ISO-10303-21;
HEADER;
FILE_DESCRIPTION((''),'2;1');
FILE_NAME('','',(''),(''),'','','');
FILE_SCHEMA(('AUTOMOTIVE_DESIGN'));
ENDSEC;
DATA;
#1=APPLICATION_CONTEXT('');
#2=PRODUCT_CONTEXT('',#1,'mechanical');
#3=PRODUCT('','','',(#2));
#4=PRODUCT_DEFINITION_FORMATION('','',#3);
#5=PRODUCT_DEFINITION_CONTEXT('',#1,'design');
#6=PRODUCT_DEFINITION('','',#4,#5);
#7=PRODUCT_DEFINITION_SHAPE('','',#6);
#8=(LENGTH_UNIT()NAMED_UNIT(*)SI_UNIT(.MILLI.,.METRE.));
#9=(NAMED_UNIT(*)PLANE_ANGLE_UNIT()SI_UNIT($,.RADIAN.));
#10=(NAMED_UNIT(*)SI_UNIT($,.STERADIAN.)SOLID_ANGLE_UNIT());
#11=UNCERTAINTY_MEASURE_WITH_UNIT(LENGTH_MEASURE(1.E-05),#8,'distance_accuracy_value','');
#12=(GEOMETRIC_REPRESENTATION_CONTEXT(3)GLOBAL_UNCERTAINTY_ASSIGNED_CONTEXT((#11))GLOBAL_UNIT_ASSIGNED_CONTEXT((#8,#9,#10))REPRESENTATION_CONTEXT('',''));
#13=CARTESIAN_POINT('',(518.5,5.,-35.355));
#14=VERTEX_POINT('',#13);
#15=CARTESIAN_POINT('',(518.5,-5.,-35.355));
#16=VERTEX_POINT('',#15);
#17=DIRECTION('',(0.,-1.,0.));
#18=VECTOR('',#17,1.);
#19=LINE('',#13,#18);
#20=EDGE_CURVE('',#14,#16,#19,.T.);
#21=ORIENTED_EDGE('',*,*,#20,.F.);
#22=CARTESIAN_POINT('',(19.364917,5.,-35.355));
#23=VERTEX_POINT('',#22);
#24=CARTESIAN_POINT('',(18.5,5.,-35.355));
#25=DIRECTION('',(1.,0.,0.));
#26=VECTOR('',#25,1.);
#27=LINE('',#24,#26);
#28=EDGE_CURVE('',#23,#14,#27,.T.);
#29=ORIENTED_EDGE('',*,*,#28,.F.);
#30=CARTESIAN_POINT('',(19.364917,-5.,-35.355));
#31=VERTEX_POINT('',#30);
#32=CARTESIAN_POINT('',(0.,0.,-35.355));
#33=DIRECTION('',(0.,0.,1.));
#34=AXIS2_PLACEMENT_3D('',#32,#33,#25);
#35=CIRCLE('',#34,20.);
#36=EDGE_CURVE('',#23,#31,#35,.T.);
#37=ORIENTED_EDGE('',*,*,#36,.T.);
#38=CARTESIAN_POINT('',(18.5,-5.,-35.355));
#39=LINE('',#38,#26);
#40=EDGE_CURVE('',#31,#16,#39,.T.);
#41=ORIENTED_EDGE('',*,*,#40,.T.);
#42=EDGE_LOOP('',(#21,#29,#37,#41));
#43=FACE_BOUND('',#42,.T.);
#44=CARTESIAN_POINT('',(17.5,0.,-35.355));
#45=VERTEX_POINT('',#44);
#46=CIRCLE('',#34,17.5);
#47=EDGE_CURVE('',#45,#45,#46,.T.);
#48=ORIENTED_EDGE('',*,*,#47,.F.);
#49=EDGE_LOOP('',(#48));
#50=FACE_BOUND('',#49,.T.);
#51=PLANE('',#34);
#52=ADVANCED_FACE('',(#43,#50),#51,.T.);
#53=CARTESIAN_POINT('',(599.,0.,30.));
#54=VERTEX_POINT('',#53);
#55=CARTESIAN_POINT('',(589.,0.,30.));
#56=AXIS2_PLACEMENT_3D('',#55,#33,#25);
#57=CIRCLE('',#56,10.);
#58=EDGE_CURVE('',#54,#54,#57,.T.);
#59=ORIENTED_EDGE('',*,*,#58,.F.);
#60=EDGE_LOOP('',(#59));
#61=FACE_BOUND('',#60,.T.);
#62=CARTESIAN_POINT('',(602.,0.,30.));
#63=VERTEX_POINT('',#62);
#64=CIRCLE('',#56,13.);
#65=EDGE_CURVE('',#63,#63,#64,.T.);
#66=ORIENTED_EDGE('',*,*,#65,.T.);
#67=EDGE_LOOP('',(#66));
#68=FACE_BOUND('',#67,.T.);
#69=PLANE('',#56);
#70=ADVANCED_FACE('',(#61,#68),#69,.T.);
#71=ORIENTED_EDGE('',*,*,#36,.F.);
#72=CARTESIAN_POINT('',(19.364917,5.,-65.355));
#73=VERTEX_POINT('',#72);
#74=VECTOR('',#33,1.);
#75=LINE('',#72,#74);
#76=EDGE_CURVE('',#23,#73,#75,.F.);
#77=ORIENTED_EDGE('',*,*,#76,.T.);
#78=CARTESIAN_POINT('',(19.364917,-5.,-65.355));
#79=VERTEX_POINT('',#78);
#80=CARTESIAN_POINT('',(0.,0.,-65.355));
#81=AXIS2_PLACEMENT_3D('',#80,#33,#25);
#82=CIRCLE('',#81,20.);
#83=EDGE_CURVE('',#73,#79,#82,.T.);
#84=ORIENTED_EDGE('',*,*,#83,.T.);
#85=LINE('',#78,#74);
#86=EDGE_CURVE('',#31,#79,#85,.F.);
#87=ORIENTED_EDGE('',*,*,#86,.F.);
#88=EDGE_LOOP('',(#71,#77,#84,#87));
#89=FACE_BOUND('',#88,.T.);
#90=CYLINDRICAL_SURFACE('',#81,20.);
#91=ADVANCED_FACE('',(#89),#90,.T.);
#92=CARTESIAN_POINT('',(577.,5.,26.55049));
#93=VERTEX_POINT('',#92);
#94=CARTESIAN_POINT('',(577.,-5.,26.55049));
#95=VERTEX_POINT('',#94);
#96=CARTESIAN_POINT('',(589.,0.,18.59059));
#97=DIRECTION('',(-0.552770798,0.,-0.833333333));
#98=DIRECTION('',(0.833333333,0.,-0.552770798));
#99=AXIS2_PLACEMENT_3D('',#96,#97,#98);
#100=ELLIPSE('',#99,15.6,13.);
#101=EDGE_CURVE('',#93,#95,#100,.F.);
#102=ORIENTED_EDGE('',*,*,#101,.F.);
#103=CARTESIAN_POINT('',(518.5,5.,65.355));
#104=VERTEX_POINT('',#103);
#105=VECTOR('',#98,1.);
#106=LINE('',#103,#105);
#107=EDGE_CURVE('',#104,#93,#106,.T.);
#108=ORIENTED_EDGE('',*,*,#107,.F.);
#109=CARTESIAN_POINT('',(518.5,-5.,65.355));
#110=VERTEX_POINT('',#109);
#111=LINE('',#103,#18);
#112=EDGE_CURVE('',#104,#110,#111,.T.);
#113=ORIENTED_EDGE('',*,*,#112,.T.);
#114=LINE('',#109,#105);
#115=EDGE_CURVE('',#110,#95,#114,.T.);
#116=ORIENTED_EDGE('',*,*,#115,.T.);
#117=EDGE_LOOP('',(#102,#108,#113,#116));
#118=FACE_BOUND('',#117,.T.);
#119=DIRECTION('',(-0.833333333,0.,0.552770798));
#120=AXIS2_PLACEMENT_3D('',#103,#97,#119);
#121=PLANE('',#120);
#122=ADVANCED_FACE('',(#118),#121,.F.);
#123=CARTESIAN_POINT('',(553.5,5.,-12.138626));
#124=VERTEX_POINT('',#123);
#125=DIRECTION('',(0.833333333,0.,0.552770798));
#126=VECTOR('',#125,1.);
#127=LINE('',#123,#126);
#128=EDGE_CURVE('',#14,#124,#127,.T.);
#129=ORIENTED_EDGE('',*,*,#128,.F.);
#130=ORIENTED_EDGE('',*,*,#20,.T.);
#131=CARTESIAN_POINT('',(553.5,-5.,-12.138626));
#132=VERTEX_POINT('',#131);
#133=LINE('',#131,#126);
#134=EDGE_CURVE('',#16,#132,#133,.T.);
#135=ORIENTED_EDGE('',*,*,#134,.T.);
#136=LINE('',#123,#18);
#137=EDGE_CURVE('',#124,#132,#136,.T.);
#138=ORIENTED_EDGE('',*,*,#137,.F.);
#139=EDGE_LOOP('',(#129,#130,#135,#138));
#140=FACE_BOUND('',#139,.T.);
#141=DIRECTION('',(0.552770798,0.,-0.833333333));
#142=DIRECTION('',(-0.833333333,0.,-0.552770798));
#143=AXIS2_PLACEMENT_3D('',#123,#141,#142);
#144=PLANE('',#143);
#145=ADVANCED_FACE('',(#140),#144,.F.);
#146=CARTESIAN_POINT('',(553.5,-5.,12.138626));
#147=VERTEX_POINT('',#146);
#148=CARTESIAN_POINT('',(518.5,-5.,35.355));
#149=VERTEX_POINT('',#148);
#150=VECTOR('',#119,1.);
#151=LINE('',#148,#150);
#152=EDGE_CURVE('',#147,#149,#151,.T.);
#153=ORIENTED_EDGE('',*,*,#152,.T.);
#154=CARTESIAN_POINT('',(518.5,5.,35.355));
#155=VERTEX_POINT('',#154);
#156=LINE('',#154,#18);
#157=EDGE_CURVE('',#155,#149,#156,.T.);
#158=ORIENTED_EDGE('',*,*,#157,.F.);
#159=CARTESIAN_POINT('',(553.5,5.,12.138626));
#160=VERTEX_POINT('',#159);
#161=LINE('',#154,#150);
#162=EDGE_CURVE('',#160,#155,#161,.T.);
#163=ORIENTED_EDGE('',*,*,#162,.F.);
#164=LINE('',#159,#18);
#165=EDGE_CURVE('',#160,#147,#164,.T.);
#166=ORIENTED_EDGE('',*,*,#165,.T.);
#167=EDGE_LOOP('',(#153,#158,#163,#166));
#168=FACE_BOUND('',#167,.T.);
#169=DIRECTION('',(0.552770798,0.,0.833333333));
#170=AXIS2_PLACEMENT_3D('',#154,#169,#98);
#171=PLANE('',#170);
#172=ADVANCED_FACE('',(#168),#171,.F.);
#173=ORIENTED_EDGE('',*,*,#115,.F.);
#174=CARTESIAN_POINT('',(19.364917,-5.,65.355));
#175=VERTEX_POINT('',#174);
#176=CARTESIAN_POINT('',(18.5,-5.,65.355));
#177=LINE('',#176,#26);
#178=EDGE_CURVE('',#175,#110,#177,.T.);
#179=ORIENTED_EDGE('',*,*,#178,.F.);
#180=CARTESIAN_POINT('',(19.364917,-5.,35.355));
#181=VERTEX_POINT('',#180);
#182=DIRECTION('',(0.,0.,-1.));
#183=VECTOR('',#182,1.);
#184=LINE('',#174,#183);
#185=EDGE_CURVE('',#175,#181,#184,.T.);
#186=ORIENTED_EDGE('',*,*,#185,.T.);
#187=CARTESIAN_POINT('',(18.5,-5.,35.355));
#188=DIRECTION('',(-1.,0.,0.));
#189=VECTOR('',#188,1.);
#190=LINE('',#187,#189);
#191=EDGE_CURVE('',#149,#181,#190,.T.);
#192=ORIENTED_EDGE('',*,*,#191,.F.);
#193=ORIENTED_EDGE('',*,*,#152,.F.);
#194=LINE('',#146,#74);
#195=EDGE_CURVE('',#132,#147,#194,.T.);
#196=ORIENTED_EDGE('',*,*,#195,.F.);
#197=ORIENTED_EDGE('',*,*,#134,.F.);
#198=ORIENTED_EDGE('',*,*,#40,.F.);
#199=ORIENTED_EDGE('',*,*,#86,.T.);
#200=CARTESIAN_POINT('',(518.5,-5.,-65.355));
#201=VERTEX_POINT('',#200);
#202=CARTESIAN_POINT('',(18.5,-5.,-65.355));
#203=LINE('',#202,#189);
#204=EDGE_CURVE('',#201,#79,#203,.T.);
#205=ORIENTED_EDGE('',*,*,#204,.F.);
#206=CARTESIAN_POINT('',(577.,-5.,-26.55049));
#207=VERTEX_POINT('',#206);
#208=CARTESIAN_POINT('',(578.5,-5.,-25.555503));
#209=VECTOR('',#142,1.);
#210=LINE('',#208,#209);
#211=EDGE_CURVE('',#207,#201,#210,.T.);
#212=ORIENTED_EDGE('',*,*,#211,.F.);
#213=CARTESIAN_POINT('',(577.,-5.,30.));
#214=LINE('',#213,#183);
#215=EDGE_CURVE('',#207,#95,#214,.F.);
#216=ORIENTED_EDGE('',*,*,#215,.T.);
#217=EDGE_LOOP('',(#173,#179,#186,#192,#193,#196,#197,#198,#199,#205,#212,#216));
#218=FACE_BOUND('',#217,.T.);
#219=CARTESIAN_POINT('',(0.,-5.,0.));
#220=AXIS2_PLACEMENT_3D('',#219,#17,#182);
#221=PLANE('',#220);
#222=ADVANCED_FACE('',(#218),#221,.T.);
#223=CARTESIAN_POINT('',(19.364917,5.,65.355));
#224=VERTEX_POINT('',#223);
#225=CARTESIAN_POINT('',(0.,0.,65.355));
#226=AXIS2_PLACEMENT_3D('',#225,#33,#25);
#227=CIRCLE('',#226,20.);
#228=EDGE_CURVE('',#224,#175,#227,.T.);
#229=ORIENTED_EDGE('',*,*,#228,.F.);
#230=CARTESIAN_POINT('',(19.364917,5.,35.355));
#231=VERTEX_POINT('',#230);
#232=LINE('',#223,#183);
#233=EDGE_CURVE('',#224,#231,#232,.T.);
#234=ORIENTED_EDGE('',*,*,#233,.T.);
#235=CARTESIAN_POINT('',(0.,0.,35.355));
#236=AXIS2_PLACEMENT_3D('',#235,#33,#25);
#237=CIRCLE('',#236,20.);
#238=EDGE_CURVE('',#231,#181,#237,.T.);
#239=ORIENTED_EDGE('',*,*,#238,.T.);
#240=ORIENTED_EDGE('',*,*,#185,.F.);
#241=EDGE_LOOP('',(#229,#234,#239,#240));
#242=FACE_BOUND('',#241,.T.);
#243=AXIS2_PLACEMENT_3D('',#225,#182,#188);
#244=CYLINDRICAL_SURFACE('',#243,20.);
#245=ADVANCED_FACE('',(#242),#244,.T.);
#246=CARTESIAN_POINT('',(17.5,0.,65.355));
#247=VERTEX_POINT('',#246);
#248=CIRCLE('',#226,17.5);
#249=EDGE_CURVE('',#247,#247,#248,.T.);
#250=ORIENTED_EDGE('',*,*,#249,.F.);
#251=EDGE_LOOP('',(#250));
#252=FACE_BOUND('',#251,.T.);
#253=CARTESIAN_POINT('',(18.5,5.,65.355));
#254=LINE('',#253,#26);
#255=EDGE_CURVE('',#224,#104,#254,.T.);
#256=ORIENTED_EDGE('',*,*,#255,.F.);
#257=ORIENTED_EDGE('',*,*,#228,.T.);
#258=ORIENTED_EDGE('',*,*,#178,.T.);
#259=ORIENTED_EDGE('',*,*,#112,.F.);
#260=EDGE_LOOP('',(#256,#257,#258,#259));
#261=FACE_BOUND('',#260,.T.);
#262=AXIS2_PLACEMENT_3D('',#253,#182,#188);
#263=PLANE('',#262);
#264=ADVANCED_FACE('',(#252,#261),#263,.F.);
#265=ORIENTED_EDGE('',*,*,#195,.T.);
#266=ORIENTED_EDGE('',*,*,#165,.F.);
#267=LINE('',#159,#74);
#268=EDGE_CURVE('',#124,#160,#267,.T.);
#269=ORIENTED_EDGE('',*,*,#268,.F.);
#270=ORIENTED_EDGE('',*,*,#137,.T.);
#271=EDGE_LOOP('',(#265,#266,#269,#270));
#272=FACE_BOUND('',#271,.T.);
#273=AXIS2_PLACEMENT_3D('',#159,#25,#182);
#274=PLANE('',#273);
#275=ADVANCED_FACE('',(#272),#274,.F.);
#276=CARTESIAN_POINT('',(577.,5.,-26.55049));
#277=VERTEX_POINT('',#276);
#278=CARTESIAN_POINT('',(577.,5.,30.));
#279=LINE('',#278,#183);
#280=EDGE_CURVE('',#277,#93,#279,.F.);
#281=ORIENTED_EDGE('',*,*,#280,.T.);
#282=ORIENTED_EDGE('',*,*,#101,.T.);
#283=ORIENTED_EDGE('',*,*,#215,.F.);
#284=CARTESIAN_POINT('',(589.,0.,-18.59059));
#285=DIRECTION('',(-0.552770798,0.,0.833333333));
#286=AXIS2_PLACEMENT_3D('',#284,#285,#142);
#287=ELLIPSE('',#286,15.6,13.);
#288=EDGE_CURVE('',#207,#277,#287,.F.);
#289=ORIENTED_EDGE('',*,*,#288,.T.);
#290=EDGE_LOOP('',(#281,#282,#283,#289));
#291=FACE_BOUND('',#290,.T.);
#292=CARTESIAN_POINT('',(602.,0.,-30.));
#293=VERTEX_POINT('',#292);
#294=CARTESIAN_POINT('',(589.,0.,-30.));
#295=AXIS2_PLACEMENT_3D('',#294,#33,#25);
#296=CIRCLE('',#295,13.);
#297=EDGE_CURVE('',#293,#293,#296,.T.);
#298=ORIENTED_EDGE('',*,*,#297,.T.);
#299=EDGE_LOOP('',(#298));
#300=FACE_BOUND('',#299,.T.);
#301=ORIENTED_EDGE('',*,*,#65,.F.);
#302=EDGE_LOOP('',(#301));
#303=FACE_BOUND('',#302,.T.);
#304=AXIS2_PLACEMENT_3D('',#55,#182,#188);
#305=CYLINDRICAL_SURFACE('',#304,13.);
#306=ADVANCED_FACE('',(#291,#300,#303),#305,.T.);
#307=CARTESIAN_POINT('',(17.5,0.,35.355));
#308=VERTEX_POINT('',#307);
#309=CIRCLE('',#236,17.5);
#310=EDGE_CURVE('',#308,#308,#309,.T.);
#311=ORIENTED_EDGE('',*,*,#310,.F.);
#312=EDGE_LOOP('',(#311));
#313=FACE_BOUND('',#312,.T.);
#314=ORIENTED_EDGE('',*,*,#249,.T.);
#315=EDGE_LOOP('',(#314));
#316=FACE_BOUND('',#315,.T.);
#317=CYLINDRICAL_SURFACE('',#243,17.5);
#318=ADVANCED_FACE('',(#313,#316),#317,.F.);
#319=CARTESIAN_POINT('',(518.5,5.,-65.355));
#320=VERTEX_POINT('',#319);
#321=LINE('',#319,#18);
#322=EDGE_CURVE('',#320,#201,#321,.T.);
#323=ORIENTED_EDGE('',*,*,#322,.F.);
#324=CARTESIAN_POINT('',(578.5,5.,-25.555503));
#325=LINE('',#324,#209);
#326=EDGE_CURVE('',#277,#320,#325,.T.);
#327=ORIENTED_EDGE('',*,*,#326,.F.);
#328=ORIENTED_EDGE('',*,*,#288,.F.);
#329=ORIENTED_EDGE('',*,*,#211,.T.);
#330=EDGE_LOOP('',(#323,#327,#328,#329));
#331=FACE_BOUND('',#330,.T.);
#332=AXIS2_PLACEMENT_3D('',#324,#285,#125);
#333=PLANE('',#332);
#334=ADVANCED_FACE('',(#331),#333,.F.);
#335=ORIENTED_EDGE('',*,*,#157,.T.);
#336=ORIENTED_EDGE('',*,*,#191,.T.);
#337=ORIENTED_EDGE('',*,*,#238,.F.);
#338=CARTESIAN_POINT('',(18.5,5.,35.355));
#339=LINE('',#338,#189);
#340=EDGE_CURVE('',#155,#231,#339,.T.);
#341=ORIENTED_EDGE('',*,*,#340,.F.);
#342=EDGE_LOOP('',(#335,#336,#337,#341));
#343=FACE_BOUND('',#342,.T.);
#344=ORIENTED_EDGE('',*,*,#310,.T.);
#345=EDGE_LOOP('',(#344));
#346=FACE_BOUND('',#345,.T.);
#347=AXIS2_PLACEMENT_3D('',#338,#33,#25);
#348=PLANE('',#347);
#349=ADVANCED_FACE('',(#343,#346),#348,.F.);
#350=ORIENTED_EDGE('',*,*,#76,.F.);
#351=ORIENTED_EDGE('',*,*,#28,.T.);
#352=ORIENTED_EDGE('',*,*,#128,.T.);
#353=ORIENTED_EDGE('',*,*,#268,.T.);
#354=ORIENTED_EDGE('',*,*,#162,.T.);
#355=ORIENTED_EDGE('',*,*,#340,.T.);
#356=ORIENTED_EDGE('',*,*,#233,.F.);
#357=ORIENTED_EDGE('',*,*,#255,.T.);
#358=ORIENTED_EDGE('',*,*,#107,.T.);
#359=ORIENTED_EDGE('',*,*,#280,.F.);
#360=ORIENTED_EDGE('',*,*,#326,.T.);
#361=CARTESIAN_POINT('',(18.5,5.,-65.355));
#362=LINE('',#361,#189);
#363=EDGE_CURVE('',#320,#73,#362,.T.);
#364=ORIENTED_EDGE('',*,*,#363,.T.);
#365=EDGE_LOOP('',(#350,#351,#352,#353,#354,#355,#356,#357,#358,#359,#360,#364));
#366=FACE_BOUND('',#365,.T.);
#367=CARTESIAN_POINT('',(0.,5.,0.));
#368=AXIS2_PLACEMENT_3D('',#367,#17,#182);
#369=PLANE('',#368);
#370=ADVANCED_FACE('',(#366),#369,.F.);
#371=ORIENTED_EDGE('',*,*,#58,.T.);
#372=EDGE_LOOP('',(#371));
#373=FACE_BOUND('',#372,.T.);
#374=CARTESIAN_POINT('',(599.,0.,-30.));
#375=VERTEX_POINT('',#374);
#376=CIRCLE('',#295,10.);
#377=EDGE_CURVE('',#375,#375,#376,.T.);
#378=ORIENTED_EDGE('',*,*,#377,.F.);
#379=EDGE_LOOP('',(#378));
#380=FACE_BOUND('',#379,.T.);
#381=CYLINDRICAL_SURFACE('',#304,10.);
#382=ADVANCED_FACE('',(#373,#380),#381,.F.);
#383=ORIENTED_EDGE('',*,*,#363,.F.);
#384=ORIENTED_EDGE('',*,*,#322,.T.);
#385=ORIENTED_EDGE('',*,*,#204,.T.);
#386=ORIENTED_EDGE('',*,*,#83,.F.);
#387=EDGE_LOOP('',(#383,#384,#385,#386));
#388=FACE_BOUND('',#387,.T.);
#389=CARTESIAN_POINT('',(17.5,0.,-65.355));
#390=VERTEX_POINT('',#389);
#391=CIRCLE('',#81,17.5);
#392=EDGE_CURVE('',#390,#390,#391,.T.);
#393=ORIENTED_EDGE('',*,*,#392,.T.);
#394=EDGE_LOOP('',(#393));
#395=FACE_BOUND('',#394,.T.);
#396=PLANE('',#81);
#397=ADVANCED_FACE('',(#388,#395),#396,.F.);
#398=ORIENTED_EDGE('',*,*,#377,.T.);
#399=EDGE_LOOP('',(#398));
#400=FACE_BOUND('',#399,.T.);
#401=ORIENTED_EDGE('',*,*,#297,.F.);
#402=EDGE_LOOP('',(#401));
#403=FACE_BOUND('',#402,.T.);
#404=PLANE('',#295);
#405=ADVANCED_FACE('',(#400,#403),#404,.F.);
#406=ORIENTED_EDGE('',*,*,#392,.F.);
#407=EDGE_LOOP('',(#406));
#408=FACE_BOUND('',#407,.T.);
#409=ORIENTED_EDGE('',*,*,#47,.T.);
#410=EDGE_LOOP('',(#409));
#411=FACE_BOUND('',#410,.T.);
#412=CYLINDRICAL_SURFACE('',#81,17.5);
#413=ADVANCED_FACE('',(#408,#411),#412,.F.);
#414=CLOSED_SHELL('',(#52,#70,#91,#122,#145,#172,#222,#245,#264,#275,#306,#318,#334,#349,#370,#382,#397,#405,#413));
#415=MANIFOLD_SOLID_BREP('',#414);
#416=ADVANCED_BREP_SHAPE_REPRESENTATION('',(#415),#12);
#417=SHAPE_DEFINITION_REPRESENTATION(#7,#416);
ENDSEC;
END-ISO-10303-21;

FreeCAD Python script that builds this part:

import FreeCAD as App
import Part
import Sketcher
Q = App.Units.Quantity


def add_polygon(sketch, points):
    """Adds a closed chain of lines whose ends are joined by coincident constraints."""
    first, n = sketch.GeometryCount, len(points)
    for a, b in zip(points, points[1:] + points[:1]):
        sketch.addGeometry(Part.LineSegment(App.Vector(*a, 0), App.Vector(*b, 0)), False)
    for i in range(n):
        sketch.addConstraint(Sketcher.Constraint("Coincident", first + i, 2, first + (i + 1) % n, 1))

doc = App.newDocument("Part")
body = doc.addObject("PartDesign::Body", "Body")

# Sketch on XY plane
sketch1 = body.newObject("Sketcher::SketchObject", "Sketch")
sketch1.AttachmentSupport = (doc.getObject("XY_Plane"), [""])
sketch1.MapMode = "FlatFace"
sketch1.AttachmentOffset = App.Placement(App.Vector(0, 0, -35.355), App.Rotation())
sketch1.addGeometry(Part.Circle(App.Vector(0, 0, 0), App.Vector(0, 0, 1), 20), False)
sketch1.addGeometry(Part.Circle(App.Vector(0, 0, 0), App.Vector(0, 0, 1), 17.5), False)
sketch1.addConstraint(Sketcher.Constraint("Coincident", 0, 3, -1, 1))
sketch1.addConstraint(Sketcher.Constraint("Coincident", 1, 3, -1, 1))
sketch1.addConstraint(Sketcher.Constraint("Diameter", 0, Q("40 mm")))
sketch1.addConstraint(Sketcher.Constraint("Diameter", 1, Q("35 mm")))
pad1 = body.newObject("PartDesign::Pad", "Pad")
pad1.Profile = sketch1
pad1.Length = 30
pad1.Reversed = True
body2 = doc.addObject("PartDesign::Body", "Body001")

# Sketch on XY plane
sketch2 = body2.newObject("Sketcher::SketchObject", "Sketch001")
sketch2.AttachmentSupport = (doc.getObject("XY_Plane001"), [""])
sketch2.MapMode = "FlatFace"
sketch2.AttachmentOffset = App.Placement(App.Vector(0, 0, 35.355), App.Rotation())
sketch2.addGeometry(Part.Circle(App.Vector(0, 0, 0), App.Vector(0, 0, 1), 20), False)
sketch2.addGeometry(Part.Circle(App.Vector(0, 0, 0), App.Vector(0, 0, 1), 17.5), False)
sketch2.addConstraint(Sketcher.Constraint("Coincident", 0, 3, -1, 1))
sketch2.addConstraint(Sketcher.Constraint("Coincident", 1, 3, -1, 1))
sketch2.addConstraint(Sketcher.Constraint("Diameter", 0, Q("40 mm")))
sketch2.addConstraint(Sketcher.Constraint("Diameter", 1, Q("35 mm")))
pad2 = body2.newObject("PartDesign::Pad", "Pad001")
pad2.Profile = sketch2
pad2.Length = 30
body.AllowCompound = True
doc.recompute()

boolean = body.newObject("PartDesign::Boolean", "Boolean")
boolean.Type = "Fuse"
boolean.addObjects([body2])

# Sketch on XZ plane
sketch3 = body.newObject("Sketcher::SketchObject", "Sketch002")
sketch3.AttachmentSupport = (doc.getObject("XZ_Plane"), [""])
sketch3.MapMode = "FlatFace"
add_polygon(sketch3, [(18.5, 35.355), (18.5, 65.355), (518.5, 65.355), (578.5, 25.555503), (578.5, -25.555503), (518.5, -65.355), (18.5, -65.355), (18.5, -35.355), (518.5, -35.355), (553.5, -12.138626), (553.5, 12.138626), (518.5, 35.355)])  # lines 0-11
sketch3.addConstraint(Sketcher.Constraint("Vertical", 0))
sketch3.addConstraint(Sketcher.Constraint("Horizontal", 1))
sketch3.addConstraint(Sketcher.Constraint("Vertical", 3))
sketch3.addConstraint(Sketcher.Constraint("Horizontal", 5))
sketch3.addConstraint(Sketcher.Constraint("Vertical", 6))
sketch3.addConstraint(Sketcher.Constraint("Horizontal", 7))
sketch3.addConstraint(Sketcher.Constraint("Vertical", 9))
sketch3.addConstraint(Sketcher.Constraint("Horizontal", 11))
sketch3.addConstraint(Sketcher.Constraint("Symmetric", 1, 2, 4, 2, -1))
sketch3.addConstraint(Sketcher.Constraint("Symmetric", 7, 2, 10, 2, -1))
sketch3.addConstraint(Sketcher.Constraint("Parallel", 4, 8))
sketch3.addConstraint(Sketcher.Constraint("Parallel", 2, 10))
sketch3.addConstraint(Sketcher.Constraint("Vertical", 0, 2, 5, 2))
sketch3.addConstraint(Sketcher.Constraint("Vertical", 4, 2, 7, 2))
sketch3.addConstraint(Sketcher.Constraint("Equal", 2, 4))
sketch3.addConstraint(Sketcher.Constraint("DistanceX", 1, 1, 1, 2, Q("500 mm")))
sketch3.addConstraint(Sketcher.Constraint("DistanceY", 0, 1, 0, 2, Q("30 mm")))
sketch3.addConstraint(Sketcher.Constraint("Distance", 2, Q("72 mm")))
sketch3.addConstraint(Sketcher.Constraint("Distance", 8, Q("42 mm")))
sketch3.addConstraint(Sketcher.Constraint("DistanceX", 1, 2, 2, 2, Q("60 mm")))
sketch3.addConstraint(Sketcher.Constraint("DistanceX", -1, 1, 0, 2, Q("18.5 mm")))
sketch3.addConstraint(Sketcher.Constraint("DistanceY", 4, 2, 1, 2, Q("130.71 mm")))
pad3 = body.newObject("PartDesign::Pad", "Pad002")
pad3.Profile = sketch3
pad3.Length = 10
pad3.Midplane = True

# Sketch on XY plane
sketch4 = body.newObject("Sketcher::SketchObject", "Sketch003")
sketch4.AttachmentSupport = (doc.getObject("XY_Plane"), [""])
sketch4.MapMode = "FlatFace"
sketch4.addGeometry(Part.Circle(App.Vector(589, 0, 0), App.Vector(0, 0, 1), 13), False)
sketch4.addGeometry(Part.Circle(App.Vector(589, 0, 0), App.Vector(0, 0, 1), 10), False)
sketch4.addConstraint(Sketcher.Constraint("Coincident", 1, 3, 0, 3))
sketch4.addConstraint(Sketcher.Constraint("PointOnObject", 0, 3, -1))
sketch4.addConstraint(Sketcher.Constraint("Diameter", 0, Q("26 mm")))
sketch4.addConstraint(Sketcher.Constraint("Diameter", 1, Q("20 mm")))
sketch4.addConstraint(Sketcher.Constraint("DistanceX", -1, 1, 0, 3, Q("589 mm")))
pad4 = body.newObject("PartDesign::Pad", "Pad003")
pad4.Profile = sketch4
pad4.Length = 60
pad4.Midplane = True

doc.recompute()
